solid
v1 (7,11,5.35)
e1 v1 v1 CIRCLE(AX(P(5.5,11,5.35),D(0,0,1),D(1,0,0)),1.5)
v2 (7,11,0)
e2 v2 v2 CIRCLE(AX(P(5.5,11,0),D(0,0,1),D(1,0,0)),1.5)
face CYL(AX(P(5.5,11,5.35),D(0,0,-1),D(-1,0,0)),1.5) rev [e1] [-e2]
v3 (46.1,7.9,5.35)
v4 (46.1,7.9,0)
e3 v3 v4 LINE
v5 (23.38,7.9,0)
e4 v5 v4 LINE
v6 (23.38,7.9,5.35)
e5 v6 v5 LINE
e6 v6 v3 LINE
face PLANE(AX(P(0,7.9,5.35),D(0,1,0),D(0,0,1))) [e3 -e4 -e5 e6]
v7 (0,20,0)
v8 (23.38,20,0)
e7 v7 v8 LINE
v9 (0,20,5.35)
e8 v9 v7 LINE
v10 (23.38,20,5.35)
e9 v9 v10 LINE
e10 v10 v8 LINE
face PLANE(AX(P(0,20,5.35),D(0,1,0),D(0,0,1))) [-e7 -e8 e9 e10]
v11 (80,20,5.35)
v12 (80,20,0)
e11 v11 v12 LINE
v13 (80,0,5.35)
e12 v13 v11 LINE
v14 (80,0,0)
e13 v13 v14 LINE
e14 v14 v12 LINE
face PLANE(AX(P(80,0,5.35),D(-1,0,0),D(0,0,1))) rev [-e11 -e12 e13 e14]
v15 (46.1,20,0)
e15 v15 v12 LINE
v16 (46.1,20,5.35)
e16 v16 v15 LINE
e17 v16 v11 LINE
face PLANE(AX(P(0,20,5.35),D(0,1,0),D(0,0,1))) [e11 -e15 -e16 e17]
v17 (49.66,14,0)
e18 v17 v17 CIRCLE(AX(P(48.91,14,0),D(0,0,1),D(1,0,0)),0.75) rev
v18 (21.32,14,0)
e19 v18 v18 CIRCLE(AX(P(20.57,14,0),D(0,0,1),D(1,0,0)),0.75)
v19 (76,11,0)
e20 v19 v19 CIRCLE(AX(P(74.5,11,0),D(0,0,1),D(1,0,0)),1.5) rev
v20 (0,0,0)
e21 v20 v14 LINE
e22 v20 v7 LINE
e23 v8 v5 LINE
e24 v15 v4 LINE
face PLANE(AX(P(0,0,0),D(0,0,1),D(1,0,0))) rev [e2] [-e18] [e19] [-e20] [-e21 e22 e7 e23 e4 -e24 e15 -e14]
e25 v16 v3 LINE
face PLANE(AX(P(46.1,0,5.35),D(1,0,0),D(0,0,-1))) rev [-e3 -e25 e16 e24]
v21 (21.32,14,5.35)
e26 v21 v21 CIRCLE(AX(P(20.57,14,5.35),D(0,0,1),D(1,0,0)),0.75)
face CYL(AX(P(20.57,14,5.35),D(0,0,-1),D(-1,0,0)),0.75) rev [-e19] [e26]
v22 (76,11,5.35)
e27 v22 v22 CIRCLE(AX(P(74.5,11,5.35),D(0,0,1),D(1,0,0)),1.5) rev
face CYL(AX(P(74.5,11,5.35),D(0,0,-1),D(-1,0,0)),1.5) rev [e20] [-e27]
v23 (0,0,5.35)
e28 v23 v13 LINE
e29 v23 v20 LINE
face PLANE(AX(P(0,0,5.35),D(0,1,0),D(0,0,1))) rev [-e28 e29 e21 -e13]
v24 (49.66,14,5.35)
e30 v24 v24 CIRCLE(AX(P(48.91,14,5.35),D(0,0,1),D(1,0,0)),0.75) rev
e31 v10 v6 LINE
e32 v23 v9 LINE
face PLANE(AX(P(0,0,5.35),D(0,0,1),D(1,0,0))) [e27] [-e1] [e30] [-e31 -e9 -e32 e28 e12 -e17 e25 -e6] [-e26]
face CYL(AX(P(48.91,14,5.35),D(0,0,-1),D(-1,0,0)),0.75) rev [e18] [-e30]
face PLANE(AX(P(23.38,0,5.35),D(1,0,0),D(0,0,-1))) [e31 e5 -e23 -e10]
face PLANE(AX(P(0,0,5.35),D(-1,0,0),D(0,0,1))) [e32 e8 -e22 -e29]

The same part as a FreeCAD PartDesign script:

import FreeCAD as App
import Part
import Sketcher
from FreeCAD import Vector
Q = App.Units.Quantity

doc = App.newDocument("Part")
body = doc.addObject("PartDesign::Body", "Body")

# Sketch on XY plane
sketch1 = body.newObject("Sketcher::SketchObject", "Sketch")
sketch1.AttachmentSupport = (doc.getObject("XY_Plane"), [""])
sketch1.MapMode = "FlatFace"
sketch1.addGeometry(Part.LineSegment(Vector(80, 20, 0), Vector(46.1, 20, 0)), False)
sketch1.addGeometry(Part.LineSegment(Vector(46.1, 20, 0), Vector(46.1, 7.9, 0)), False)
sketch1.addGeometry(Part.LineSegment(Vector(46.1, 7.9, 0), Vector(23.4, 7.9, 0)), False)
sketch1.addGeometry(Part.LineSegment(Vector(23.4, 7.9, 0), Vector(23.4, 20, 0)), False)
sketch1.addGeometry(Part.LineSegment(Vector(23.4, 20, 0), Vector(0, 20, 0)), False)
sketch1.addGeometry(Part.LineSegment(Vector(0, 20, 0), Vector(0, 0, 0)), False)
sketch1.addGeometry(Part.LineSegment(Vector(0, 0, 0), Vector(80, 0, 0)), False)
sketch1.addGeometry(Part.LineSegment(Vector(80, 0, 0), Vector(80, 20, 0)), False)
sketch1.addGeometry(Part.Circle(Vector(74.5, 11, 0), Vector(0, 0, 1), 1.5), False)
sketch1.addGeometry(Part.Circle(Vector(5.5, 11, 0), Vector(0, 0, 1), 1.5), False)
sketch1.addGeometry(Part.Circle(Vector(48.9, 14, 0), Vector(0, 0, 1), 0.8), False)
sketch1.addGeometry(Part.Circle(Vector(20.6, 14, 0), Vector(0, 0, 1), 0.8), False)
sketch1.addConstraint(Sketcher.Constraint("Coincident", 0, 2, 1, 1))
sketch1.addConstraint(Sketcher.Constraint("Coincident", 1, 2, 2, 1))
sketch1.addConstraint(Sketcher.Constraint("Coincident", 2, 2, 3, 1))
sketch1.addConstraint(Sketcher.Constraint("Coincident", 3, 2, 4, 1))
sketch1.addConstraint(Sketcher.Constraint("Coincident", 4, 2, 5, 1))
sketch1.addConstraint(Sketcher.Constraint("Coincident", 5, 2, 6, 1))
sketch1.addConstraint(Sketcher.Constraint("Coincident", 6, 2, 7, 1))
sketch1.addConstraint(Sketcher.Constraint("Coincident", 7, 2, 0, 1))
sketch1.addConstraint(Sketcher.Constraint("Horizontal", 0))
sketch1.addConstraint(Sketcher.Constraint("Vertical", 1))
sketch1.addConstraint(Sketcher.Constraint("Horizontal", 2))
sketch1.addConstraint(Sketcher.Constraint("Vertical", 3))
sketch1.addConstraint(Sketcher.Constraint("Horizontal", 4))
sketch1.addConstraint(Sketcher.Constraint("Vertical", 5))
sketch1.addConstraint(Sketcher.Constraint("Horizontal", 6))
sketch1.addConstraint(Sketcher.Constraint("Vertical", 7))
sketch1.addConstraint(Sketcher.Constraint("Coincident", 5, 2, -1, 1))
sketch1.addConstraint(Sketcher.Constraint("Equal", 8, 9))
sketch1.addConstraint(Sketcher.Constraint("Equal", 10, 11))
sketch1.addConstraint(Sketcher.Constraint("Horizontal", 8, 3, 9, 3))
sketch1.addConstraint(Sketcher.Constraint("Horizontal", 10, 3, 11, 3))
sketch1.addConstraint(Sketcher.Constraint("Horizontal", 0, 2, 3, 2))
sketch1.addConstraint(Sketcher.Constraint("Diameter", 8, Q("3 mm")))
sketch1.addConstraint(Sketcher.Constraint("Diameter", 10, Q("1.5 mm")))
sketch1.addConstraint(Sketcher.Constraint("DistanceX", 6, 1, 6, 2, Q("80 mm")))
sketch1.addConstraint(Sketcher.Constraint("DistanceY", 5, 2, 5, 1, Q("20 mm")))
sketch1.addConstraint(Sketcher.Constraint("DistanceX", 0, 2, 0, 1, Q("33.9 mm")))
sketch1.addConstraint(Sketcher.Constraint("DistanceY", 1, 2, 1, 1, Q("12.1 mm")))
sketch1.addConstraint(Sketcher.Constraint("DistanceY", -1, 1, 8, 3, Q("11 mm")))
sketch1.addConstraint(Sketcher.Constraint("DistanceY", -1, 1, 10, 3, Q("14 mm")))
sketch1.addConstraint(Sketcher.Constraint("DistanceX", 9, 3, 8, 3, Q("69 mm")))
sketch1.addConstraint(Sketcher.Constraint("DistanceX", 2, 2, 2, 1, Q("22.72 mm")))
sketch1.addConstraint(Sketcher.Constraint("DistanceX", -1, 1, 8, 3, Q("74.5 mm")))
sketch1.addConstraint(Sketcher.Constraint("DistanceX", -1, 1, 10, 3, Q("48.91 mm")))
sketch1.addConstraint(Sketcher.Constraint("DistanceX", -1, 1, 11, 3, Q("20.57 mm")))
pad1 = body.newObject("PartDesign::Pad", "Pad")
pad1.Profile = sketch1
pad1.Length = 5.35

doc.recompute()
